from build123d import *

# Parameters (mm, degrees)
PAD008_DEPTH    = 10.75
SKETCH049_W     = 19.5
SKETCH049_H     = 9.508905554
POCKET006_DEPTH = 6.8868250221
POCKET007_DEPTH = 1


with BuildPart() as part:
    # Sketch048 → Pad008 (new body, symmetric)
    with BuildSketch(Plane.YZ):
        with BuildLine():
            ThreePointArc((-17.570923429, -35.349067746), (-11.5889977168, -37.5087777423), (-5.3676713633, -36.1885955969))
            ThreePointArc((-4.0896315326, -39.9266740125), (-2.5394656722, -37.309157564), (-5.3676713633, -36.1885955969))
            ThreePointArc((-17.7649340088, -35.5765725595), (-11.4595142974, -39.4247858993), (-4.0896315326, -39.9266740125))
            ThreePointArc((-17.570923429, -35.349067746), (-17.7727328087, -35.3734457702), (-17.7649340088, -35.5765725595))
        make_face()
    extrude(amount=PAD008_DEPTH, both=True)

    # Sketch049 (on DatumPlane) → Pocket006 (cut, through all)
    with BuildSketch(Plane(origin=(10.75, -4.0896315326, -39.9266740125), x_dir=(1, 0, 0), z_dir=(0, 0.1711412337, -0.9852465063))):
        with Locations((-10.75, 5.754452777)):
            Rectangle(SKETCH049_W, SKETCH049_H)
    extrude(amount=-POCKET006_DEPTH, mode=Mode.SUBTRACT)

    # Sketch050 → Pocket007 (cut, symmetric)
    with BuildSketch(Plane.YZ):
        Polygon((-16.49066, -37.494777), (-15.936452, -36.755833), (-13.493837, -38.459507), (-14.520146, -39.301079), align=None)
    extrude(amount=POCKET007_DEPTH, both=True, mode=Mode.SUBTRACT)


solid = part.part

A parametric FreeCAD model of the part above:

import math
import FreeCAD as App
import Part
import Sketcher
Q = App.Units.Quantity


def add_polygon(sketch, points):
    """Adds a closed chain of lines whose ends are joined by coincident constraints."""
    first, n = sketch.GeometryCount, len(points)
    for a, b in zip(points, points[1:] + points[:1]):
        sketch.addGeometry(Part.LineSegment(App.Vector(*a, 0), App.Vector(*b, 0)), False)
    for i in range(n):
        sketch.addConstraint(Sketcher.Constraint("Coincident", first + i, 2, first + (i + 1) % n, 1))

doc = App.newDocument("Part")
body = doc.addObject("PartDesign::Body", "Body")

# Sketch on YZ plane
sketch1 = body.newObject("Sketcher::SketchObject", "Sketch")
sketch1.AttachmentSupport = (doc.getObject("YZ_Plane"), [""])
sketch1.MapMode = "FlatFace"
sketch1.addGeometry([
    Part.ArcOfCircle(Part.Circle(App.Vector(-10.79, -25.94, 0), App.Vector(0, 0, 1), 11.6), math.radians(-126), math.radians(-62)),
    Part.ArcOfCircle(Part.Circle(App.Vector(-17.66, -35.47, 0), App.Vector(0, 0, 1), 0.15), math.radians(54), math.radians(225)),
    Part.ArcOfCircle(Part.Circle(App.Vector(-6.75, -24.62, 0), App.Vector(0, 0, 1), 15.54), math.radians(-135), math.radians(-80)),
    Part.ArcOfCircle(Part.Circle(App.Vector(-4.43, -37.96, 0), App.Vector(0, 0, 1), 2), math.radians(-80), math.radians(118)),
], False)
sketch1.addConstraint([
    Sketcher.Constraint("Tangent", 0, 1, 1, 1),
    Sketcher.Constraint("Tangent", 1, 2, 2, 1),
    Sketcher.Constraint("Tangent", 2, 2, 3, 1),
    Sketcher.Constraint("Tangent", 3, 2, 0, 2),
    Sketcher.Constraint("Radius", 3, Q("2 mm")),
    Sketcher.Constraint("Radius", 1, Q("0.15 mm")),
    Sketcher.Constraint("Radius", 0, Q("11.595878 mm")),
    Sketcher.Constraint("Radius", 2, Q("15.539316 mm")),
    Sketcher.Constraint("DistanceX", 1, 3, -1, 1, Q("17.658598 mm")),
    Sketcher.Constraint("DistanceX", 1, 2, 0, 3, Q("6.971798 mm")),
    Sketcher.Constraint("DistanceY", 2, 2, 1, 2, Q("4.350101 mm")),
    Sketcher.Constraint("DistanceY", 3, 3, -1, 1, Q("37.956181 mm")),
])
pad1 = body.newObject("PartDesign::Pad", "Pad")
pad1.Profile = sketch1
pad1.Length = 21.5
pad1.Midplane = True

# Sketch on an angled plane
sketch2 = body.newObject("Sketcher::SketchObject", "Sketch001")
sketch2.Placement = App.Placement(App.Vector(10.75, -4.089632, -39.926674), App.Rotation(App.Vector(1, 0, 0), App.Vector(0, -0.985246506, -0.171141234), App.Vector(0, 0.171141234, -0.985246506), "ZXY"))
add_polygon(sketch2, [(-20, 11), (-20, 1), (-1, 1), (-1, 11)])  # lines 0-3
sketch2.addConstraint([
    Sketcher.Constraint("Vertical", 0),
    Sketcher.Constraint("Horizontal", 1),
    Sketcher.Constraint("Vertical", 2),
    Sketcher.Constraint("Horizontal", 3),
    Sketcher.Constraint("DistanceX", 1, 1, 1, 2, Q("19.5 mm")),
    Sketcher.Constraint("DistanceY", -1, 1, 0, 2, Q("1 mm")),
    Sketcher.Constraint("DistanceX", 1, 2, -1, 1, Q("1 mm")),
    Sketcher.Constraint("DistanceY", 0, 2, 0, 1, Q("9.508906 mm")),
])
pocket1 = body.newObject("PartDesign::Pocket", "Pocket")
pocket1.Profile = sketch2
pocket1.Type = "ThroughAll"

# Sketch on YZ plane
sketch3 = body.newObject("Sketcher::SketchObject", "Sketch002")
sketch3.AttachmentSupport = (doc.getObject("YZ_Plane"), [""])
sketch3.MapMode = "FlatFace"
add_polygon(sketch3, [(-15.9, -36.8), (-16.5, -37.5), (-14.5, -39.3), (-13.5, -38.5)])  # lines 0-3
sketch3.addConstraint([
    Sketcher.Constraint("Distance", 0, Q("0.92368 mm")),
    Sketcher.Constraint("DistanceX", 0, 2, -1, 1, Q("16.49066 mm")),
    Sketcher.Constraint("DistanceY", 1, 2, -1, 1, Q("39.301079 mm")),
    Sketcher.Constraint("DistanceX", 3, 2, -1, 1, Q("15.936452 mm")),
    Sketcher.Constraint("DistanceX", 1, 2, 2, 2, Q("1.026309 mm")),
    Sketcher.Constraint("DistanceY", 1, 2, 2, 2, Q("0.841572 mm")),
    Sketcher.Constraint("DistanceY", 2, 2, 0, 2, Q("0.96473 mm")),
    Sketcher.Constraint("Distance", 1, Q("2.673135 mm")),
])
pocket2 = body.newObject("PartDesign::Pocket", "Pocket001")
pocket2.Profile = sketch3
pocket2.Length = 2
pocket2.Midplane = True

doc.recompute()
